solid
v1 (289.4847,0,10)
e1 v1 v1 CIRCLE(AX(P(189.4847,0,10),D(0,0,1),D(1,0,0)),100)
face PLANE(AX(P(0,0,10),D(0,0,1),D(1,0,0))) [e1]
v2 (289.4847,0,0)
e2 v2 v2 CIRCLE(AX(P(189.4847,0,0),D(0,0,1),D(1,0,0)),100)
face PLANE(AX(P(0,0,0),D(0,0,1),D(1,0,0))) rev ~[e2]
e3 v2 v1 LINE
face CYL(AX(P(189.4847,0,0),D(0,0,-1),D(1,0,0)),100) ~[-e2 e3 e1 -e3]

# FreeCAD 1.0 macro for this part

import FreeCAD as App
import Part
import Sketcher
from FreeCAD import Vector

doc = App.newDocument("Part")
body = doc.addObject("PartDesign::Body", "Body")

sketch1 = body.newObject("Sketcher::SketchObject", "Sketch")
sketch1.AttachmentSupport = (doc.getObject("XY_Plane"), [""])
sketch1.MapMode = "FlatFace"
sketch1.addGeometry(Part.Circle(Vector(189, 0, 0), Vector(0, 0, 1), 100), False)
sketch1.addConstraint([
    Sketcher.Constraint("PointOnObject", 0, 3, -1),
    Sketcher.Constraint("Diameter", 0, 200.0),
    Sketcher.Constraint("DistanceX", -1, 1, 0, 3, 189.4847),
])
pad1 = body.newObject("PartDesign::Pad", "Pad")
pad1.Profile = sketch1
pad1.Length = 10

doc.recompute()
